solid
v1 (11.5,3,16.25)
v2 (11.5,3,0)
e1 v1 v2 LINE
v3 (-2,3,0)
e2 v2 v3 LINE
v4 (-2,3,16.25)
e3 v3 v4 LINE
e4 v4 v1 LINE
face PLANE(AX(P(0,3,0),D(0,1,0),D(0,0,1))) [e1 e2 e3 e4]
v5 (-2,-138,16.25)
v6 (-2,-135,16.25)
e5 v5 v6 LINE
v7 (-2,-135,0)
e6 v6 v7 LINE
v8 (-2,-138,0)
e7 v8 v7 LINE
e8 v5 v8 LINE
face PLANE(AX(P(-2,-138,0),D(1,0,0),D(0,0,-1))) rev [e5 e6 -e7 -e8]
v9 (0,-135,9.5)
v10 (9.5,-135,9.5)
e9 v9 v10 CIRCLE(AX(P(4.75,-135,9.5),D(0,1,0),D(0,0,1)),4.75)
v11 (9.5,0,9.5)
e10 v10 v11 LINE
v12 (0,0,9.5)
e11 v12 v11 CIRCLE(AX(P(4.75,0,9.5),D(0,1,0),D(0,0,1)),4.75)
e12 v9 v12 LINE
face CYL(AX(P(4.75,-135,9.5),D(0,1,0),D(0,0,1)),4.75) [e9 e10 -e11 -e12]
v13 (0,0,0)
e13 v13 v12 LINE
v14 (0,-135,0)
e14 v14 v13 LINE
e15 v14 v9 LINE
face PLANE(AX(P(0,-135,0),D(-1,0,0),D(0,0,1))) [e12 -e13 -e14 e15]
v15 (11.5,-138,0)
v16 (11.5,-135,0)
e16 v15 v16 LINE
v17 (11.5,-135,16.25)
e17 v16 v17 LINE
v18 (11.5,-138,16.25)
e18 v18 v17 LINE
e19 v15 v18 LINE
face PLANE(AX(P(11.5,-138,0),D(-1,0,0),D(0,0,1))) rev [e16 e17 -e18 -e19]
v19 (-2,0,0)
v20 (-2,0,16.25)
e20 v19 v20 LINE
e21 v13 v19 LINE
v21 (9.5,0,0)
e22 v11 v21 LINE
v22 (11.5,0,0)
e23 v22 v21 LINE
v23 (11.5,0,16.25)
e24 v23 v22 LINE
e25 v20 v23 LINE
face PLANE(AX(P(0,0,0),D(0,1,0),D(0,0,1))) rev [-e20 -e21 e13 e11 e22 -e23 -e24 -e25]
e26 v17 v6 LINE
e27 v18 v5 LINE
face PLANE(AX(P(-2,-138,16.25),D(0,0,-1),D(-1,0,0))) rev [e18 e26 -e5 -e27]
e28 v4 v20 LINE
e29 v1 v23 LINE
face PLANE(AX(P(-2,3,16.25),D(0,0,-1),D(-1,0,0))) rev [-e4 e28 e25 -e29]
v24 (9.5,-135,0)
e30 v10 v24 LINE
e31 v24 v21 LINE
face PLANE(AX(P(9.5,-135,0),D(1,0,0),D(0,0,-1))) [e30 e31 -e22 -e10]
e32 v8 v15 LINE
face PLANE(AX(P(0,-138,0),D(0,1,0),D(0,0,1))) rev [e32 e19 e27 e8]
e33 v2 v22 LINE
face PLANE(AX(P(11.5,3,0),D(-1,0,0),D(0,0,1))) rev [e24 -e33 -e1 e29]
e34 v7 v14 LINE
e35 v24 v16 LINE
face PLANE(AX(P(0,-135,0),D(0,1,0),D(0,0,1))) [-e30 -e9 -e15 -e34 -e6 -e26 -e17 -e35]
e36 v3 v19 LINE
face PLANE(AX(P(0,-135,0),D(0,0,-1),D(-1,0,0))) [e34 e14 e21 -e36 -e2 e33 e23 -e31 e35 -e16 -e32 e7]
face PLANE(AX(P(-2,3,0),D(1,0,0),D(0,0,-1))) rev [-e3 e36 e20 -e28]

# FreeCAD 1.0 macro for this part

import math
import FreeCAD as App
import Part
import Sketcher

V = App.Vector

doc = App.newDocument("Part")
body = doc.addObject("PartDesign::Body", "Body")

sketch1 = body.newObject("Sketcher::SketchObject", "Sketch")
sketch1.AttachmentSupport = (doc.getObject("XZ_Plane"), [""])
sketch1.MapMode = "FlatFace"
sketch1.addGeometry([
    Part.LineSegment(V(9.5, 0, 0), V(0, 0, 0)),
    Part.LineSegment(V(0, 0, 0), V(0, 9.5, 0)),
    Part.ArcOfCircle(Part.Circle(V(4.8, 9.5, 0), V(0, 0, 1), 4.8), math.radians(0), math.radians(180)),
    Part.LineSegment(V(9.5, 9.5, 0), V(9.5, 0, 0)),
], False)
sketch1.addConstraint([
    Sketcher.Constraint("Coincident", 0, 2, 1, 1),
    Sketcher.Constraint("Tangent", 1, 2, 2, 2),
    Sketcher.Constraint("Tangent", 2, 1, 3, 1),
    Sketcher.Constraint("Coincident", 3, 2, 0, 1),
    Sketcher.Constraint("Horizontal", 0),
    Sketcher.Constraint("Vertical", 1),
    Sketcher.Constraint("Vertical", 3),
    Sketcher.Constraint("Coincident", 0, 2, -1, 1),
    Sketcher.Constraint("Equal", 0, 1),
    Sketcher.Constraint("Radius", 2, 4.75),
])
pad1 = body.newObject("PartDesign::Pad", "Pad")
pad1.Profile = sketch1
pad1.Length = 135

sketch2 = body.newObject("Sketcher::SketchObject", "Sketch001")
sketch2.AttachmentSupport = (doc.getObject("XZ_Plane"), [""])
sketch2.MapMode = "FlatFace"
sketch2.AttachmentOffset = App.Placement(V(0, 0, 135), App.Rotation())
sketch2.addGeometry([
    Part.LineSegment(V(-2, 16, 0), V(-2, 0, 0)),
    Part.LineSegment(V(-2, 0, 0), V(12, 0, 0)),
    Part.LineSegment(V(12, 0, 0), V(12, 16, 0)),
    Part.LineSegment(V(12, 16, 0), V(-2, 16, 0)),
], False)
sketch2.addConstraint([
    Sketcher.Constraint("Coincident", 0, 2, 1, 1),
    Sketcher.Constraint("Coincident", 1, 2, 2, 1),
    Sketcher.Constraint("Coincident", 2, 2, 3, 1),
    Sketcher.Constraint("Coincident", 3, 2, 0, 1),
    Sketcher.Constraint("Vertical", 0),
    Sketcher.Constraint("Horizontal", 1),
    Sketcher.Constraint("Vertical", 2),
    Sketcher.Constraint("Horizontal", 3),
    Sketcher.Constraint("PointOnObject", 0, 2, -1),
    Sketcher.Constraint("DistanceX", 1, 1, 1, 2, 13.5),
    Sketcher.Constraint("DistanceX", 0, 2, -1, 1, 2.0),
    Sketcher.Constraint("DistanceY", 0, 2, 0, 1, 16.25),
])
pad2 = body.newObject("PartDesign::Pad", "Pad001")
pad2.Profile = sketch2
pad2.Length = 3

sketch3 = body.newObject("Sketcher::SketchObject", "Sketch002")
sketch3.AttachmentSupport = (doc.getObject("XZ_Plane"), [""])
sketch3.MapMode = "FlatFace"
sketch3.addGeometry([
    Part.LineSegment(V(-2, 0, 0), V(-2, 16, 0)),
    Part.LineSegment(V(-2, 16, 0), V(12, 16, 0)),
    Part.LineSegment(V(12, 16, 0), V(12, 0, 0)),
    Part.LineSegment(V(12, 0, 0), V(-2, 0, 0)),
], False)
sketch3.addConstraint([
    Sketcher.Constraint("Coincident", 0, 2, 1, 1),
    Sketcher.Constraint("Coincident", 1, 2, 2, 1),
    Sketcher.Constraint("Coincident", 2, 2, 3, 1),
    Sketcher.Constraint("Coincident", 3, 2, 0, 1),
    Sketcher.Constraint("Vertical", 0),
    Sketcher.Constraint("Horizontal", 1),
    Sketcher.Constraint("Vertical", 2),
    Sketcher.Constraint("Horizontal", 3),
    Sketcher.Constraint("PointOnObject", 2, 2, -1),
    Sketcher.Constraint("DistanceX", 1, 1, 1, 2, 13.5),
    Sketcher.Constraint("DistanceX", 0, 2, -1, 1, 2.0),
    Sketcher.Constraint("DistanceY", 0, 1, 0, 2, 16.25),
])
pad3 = body.newObject("PartDesign::Pad", "Pad002")
pad3.Profile = sketch3
pad3.Length = 3
pad3.Reversed = True

doc.recompute()
